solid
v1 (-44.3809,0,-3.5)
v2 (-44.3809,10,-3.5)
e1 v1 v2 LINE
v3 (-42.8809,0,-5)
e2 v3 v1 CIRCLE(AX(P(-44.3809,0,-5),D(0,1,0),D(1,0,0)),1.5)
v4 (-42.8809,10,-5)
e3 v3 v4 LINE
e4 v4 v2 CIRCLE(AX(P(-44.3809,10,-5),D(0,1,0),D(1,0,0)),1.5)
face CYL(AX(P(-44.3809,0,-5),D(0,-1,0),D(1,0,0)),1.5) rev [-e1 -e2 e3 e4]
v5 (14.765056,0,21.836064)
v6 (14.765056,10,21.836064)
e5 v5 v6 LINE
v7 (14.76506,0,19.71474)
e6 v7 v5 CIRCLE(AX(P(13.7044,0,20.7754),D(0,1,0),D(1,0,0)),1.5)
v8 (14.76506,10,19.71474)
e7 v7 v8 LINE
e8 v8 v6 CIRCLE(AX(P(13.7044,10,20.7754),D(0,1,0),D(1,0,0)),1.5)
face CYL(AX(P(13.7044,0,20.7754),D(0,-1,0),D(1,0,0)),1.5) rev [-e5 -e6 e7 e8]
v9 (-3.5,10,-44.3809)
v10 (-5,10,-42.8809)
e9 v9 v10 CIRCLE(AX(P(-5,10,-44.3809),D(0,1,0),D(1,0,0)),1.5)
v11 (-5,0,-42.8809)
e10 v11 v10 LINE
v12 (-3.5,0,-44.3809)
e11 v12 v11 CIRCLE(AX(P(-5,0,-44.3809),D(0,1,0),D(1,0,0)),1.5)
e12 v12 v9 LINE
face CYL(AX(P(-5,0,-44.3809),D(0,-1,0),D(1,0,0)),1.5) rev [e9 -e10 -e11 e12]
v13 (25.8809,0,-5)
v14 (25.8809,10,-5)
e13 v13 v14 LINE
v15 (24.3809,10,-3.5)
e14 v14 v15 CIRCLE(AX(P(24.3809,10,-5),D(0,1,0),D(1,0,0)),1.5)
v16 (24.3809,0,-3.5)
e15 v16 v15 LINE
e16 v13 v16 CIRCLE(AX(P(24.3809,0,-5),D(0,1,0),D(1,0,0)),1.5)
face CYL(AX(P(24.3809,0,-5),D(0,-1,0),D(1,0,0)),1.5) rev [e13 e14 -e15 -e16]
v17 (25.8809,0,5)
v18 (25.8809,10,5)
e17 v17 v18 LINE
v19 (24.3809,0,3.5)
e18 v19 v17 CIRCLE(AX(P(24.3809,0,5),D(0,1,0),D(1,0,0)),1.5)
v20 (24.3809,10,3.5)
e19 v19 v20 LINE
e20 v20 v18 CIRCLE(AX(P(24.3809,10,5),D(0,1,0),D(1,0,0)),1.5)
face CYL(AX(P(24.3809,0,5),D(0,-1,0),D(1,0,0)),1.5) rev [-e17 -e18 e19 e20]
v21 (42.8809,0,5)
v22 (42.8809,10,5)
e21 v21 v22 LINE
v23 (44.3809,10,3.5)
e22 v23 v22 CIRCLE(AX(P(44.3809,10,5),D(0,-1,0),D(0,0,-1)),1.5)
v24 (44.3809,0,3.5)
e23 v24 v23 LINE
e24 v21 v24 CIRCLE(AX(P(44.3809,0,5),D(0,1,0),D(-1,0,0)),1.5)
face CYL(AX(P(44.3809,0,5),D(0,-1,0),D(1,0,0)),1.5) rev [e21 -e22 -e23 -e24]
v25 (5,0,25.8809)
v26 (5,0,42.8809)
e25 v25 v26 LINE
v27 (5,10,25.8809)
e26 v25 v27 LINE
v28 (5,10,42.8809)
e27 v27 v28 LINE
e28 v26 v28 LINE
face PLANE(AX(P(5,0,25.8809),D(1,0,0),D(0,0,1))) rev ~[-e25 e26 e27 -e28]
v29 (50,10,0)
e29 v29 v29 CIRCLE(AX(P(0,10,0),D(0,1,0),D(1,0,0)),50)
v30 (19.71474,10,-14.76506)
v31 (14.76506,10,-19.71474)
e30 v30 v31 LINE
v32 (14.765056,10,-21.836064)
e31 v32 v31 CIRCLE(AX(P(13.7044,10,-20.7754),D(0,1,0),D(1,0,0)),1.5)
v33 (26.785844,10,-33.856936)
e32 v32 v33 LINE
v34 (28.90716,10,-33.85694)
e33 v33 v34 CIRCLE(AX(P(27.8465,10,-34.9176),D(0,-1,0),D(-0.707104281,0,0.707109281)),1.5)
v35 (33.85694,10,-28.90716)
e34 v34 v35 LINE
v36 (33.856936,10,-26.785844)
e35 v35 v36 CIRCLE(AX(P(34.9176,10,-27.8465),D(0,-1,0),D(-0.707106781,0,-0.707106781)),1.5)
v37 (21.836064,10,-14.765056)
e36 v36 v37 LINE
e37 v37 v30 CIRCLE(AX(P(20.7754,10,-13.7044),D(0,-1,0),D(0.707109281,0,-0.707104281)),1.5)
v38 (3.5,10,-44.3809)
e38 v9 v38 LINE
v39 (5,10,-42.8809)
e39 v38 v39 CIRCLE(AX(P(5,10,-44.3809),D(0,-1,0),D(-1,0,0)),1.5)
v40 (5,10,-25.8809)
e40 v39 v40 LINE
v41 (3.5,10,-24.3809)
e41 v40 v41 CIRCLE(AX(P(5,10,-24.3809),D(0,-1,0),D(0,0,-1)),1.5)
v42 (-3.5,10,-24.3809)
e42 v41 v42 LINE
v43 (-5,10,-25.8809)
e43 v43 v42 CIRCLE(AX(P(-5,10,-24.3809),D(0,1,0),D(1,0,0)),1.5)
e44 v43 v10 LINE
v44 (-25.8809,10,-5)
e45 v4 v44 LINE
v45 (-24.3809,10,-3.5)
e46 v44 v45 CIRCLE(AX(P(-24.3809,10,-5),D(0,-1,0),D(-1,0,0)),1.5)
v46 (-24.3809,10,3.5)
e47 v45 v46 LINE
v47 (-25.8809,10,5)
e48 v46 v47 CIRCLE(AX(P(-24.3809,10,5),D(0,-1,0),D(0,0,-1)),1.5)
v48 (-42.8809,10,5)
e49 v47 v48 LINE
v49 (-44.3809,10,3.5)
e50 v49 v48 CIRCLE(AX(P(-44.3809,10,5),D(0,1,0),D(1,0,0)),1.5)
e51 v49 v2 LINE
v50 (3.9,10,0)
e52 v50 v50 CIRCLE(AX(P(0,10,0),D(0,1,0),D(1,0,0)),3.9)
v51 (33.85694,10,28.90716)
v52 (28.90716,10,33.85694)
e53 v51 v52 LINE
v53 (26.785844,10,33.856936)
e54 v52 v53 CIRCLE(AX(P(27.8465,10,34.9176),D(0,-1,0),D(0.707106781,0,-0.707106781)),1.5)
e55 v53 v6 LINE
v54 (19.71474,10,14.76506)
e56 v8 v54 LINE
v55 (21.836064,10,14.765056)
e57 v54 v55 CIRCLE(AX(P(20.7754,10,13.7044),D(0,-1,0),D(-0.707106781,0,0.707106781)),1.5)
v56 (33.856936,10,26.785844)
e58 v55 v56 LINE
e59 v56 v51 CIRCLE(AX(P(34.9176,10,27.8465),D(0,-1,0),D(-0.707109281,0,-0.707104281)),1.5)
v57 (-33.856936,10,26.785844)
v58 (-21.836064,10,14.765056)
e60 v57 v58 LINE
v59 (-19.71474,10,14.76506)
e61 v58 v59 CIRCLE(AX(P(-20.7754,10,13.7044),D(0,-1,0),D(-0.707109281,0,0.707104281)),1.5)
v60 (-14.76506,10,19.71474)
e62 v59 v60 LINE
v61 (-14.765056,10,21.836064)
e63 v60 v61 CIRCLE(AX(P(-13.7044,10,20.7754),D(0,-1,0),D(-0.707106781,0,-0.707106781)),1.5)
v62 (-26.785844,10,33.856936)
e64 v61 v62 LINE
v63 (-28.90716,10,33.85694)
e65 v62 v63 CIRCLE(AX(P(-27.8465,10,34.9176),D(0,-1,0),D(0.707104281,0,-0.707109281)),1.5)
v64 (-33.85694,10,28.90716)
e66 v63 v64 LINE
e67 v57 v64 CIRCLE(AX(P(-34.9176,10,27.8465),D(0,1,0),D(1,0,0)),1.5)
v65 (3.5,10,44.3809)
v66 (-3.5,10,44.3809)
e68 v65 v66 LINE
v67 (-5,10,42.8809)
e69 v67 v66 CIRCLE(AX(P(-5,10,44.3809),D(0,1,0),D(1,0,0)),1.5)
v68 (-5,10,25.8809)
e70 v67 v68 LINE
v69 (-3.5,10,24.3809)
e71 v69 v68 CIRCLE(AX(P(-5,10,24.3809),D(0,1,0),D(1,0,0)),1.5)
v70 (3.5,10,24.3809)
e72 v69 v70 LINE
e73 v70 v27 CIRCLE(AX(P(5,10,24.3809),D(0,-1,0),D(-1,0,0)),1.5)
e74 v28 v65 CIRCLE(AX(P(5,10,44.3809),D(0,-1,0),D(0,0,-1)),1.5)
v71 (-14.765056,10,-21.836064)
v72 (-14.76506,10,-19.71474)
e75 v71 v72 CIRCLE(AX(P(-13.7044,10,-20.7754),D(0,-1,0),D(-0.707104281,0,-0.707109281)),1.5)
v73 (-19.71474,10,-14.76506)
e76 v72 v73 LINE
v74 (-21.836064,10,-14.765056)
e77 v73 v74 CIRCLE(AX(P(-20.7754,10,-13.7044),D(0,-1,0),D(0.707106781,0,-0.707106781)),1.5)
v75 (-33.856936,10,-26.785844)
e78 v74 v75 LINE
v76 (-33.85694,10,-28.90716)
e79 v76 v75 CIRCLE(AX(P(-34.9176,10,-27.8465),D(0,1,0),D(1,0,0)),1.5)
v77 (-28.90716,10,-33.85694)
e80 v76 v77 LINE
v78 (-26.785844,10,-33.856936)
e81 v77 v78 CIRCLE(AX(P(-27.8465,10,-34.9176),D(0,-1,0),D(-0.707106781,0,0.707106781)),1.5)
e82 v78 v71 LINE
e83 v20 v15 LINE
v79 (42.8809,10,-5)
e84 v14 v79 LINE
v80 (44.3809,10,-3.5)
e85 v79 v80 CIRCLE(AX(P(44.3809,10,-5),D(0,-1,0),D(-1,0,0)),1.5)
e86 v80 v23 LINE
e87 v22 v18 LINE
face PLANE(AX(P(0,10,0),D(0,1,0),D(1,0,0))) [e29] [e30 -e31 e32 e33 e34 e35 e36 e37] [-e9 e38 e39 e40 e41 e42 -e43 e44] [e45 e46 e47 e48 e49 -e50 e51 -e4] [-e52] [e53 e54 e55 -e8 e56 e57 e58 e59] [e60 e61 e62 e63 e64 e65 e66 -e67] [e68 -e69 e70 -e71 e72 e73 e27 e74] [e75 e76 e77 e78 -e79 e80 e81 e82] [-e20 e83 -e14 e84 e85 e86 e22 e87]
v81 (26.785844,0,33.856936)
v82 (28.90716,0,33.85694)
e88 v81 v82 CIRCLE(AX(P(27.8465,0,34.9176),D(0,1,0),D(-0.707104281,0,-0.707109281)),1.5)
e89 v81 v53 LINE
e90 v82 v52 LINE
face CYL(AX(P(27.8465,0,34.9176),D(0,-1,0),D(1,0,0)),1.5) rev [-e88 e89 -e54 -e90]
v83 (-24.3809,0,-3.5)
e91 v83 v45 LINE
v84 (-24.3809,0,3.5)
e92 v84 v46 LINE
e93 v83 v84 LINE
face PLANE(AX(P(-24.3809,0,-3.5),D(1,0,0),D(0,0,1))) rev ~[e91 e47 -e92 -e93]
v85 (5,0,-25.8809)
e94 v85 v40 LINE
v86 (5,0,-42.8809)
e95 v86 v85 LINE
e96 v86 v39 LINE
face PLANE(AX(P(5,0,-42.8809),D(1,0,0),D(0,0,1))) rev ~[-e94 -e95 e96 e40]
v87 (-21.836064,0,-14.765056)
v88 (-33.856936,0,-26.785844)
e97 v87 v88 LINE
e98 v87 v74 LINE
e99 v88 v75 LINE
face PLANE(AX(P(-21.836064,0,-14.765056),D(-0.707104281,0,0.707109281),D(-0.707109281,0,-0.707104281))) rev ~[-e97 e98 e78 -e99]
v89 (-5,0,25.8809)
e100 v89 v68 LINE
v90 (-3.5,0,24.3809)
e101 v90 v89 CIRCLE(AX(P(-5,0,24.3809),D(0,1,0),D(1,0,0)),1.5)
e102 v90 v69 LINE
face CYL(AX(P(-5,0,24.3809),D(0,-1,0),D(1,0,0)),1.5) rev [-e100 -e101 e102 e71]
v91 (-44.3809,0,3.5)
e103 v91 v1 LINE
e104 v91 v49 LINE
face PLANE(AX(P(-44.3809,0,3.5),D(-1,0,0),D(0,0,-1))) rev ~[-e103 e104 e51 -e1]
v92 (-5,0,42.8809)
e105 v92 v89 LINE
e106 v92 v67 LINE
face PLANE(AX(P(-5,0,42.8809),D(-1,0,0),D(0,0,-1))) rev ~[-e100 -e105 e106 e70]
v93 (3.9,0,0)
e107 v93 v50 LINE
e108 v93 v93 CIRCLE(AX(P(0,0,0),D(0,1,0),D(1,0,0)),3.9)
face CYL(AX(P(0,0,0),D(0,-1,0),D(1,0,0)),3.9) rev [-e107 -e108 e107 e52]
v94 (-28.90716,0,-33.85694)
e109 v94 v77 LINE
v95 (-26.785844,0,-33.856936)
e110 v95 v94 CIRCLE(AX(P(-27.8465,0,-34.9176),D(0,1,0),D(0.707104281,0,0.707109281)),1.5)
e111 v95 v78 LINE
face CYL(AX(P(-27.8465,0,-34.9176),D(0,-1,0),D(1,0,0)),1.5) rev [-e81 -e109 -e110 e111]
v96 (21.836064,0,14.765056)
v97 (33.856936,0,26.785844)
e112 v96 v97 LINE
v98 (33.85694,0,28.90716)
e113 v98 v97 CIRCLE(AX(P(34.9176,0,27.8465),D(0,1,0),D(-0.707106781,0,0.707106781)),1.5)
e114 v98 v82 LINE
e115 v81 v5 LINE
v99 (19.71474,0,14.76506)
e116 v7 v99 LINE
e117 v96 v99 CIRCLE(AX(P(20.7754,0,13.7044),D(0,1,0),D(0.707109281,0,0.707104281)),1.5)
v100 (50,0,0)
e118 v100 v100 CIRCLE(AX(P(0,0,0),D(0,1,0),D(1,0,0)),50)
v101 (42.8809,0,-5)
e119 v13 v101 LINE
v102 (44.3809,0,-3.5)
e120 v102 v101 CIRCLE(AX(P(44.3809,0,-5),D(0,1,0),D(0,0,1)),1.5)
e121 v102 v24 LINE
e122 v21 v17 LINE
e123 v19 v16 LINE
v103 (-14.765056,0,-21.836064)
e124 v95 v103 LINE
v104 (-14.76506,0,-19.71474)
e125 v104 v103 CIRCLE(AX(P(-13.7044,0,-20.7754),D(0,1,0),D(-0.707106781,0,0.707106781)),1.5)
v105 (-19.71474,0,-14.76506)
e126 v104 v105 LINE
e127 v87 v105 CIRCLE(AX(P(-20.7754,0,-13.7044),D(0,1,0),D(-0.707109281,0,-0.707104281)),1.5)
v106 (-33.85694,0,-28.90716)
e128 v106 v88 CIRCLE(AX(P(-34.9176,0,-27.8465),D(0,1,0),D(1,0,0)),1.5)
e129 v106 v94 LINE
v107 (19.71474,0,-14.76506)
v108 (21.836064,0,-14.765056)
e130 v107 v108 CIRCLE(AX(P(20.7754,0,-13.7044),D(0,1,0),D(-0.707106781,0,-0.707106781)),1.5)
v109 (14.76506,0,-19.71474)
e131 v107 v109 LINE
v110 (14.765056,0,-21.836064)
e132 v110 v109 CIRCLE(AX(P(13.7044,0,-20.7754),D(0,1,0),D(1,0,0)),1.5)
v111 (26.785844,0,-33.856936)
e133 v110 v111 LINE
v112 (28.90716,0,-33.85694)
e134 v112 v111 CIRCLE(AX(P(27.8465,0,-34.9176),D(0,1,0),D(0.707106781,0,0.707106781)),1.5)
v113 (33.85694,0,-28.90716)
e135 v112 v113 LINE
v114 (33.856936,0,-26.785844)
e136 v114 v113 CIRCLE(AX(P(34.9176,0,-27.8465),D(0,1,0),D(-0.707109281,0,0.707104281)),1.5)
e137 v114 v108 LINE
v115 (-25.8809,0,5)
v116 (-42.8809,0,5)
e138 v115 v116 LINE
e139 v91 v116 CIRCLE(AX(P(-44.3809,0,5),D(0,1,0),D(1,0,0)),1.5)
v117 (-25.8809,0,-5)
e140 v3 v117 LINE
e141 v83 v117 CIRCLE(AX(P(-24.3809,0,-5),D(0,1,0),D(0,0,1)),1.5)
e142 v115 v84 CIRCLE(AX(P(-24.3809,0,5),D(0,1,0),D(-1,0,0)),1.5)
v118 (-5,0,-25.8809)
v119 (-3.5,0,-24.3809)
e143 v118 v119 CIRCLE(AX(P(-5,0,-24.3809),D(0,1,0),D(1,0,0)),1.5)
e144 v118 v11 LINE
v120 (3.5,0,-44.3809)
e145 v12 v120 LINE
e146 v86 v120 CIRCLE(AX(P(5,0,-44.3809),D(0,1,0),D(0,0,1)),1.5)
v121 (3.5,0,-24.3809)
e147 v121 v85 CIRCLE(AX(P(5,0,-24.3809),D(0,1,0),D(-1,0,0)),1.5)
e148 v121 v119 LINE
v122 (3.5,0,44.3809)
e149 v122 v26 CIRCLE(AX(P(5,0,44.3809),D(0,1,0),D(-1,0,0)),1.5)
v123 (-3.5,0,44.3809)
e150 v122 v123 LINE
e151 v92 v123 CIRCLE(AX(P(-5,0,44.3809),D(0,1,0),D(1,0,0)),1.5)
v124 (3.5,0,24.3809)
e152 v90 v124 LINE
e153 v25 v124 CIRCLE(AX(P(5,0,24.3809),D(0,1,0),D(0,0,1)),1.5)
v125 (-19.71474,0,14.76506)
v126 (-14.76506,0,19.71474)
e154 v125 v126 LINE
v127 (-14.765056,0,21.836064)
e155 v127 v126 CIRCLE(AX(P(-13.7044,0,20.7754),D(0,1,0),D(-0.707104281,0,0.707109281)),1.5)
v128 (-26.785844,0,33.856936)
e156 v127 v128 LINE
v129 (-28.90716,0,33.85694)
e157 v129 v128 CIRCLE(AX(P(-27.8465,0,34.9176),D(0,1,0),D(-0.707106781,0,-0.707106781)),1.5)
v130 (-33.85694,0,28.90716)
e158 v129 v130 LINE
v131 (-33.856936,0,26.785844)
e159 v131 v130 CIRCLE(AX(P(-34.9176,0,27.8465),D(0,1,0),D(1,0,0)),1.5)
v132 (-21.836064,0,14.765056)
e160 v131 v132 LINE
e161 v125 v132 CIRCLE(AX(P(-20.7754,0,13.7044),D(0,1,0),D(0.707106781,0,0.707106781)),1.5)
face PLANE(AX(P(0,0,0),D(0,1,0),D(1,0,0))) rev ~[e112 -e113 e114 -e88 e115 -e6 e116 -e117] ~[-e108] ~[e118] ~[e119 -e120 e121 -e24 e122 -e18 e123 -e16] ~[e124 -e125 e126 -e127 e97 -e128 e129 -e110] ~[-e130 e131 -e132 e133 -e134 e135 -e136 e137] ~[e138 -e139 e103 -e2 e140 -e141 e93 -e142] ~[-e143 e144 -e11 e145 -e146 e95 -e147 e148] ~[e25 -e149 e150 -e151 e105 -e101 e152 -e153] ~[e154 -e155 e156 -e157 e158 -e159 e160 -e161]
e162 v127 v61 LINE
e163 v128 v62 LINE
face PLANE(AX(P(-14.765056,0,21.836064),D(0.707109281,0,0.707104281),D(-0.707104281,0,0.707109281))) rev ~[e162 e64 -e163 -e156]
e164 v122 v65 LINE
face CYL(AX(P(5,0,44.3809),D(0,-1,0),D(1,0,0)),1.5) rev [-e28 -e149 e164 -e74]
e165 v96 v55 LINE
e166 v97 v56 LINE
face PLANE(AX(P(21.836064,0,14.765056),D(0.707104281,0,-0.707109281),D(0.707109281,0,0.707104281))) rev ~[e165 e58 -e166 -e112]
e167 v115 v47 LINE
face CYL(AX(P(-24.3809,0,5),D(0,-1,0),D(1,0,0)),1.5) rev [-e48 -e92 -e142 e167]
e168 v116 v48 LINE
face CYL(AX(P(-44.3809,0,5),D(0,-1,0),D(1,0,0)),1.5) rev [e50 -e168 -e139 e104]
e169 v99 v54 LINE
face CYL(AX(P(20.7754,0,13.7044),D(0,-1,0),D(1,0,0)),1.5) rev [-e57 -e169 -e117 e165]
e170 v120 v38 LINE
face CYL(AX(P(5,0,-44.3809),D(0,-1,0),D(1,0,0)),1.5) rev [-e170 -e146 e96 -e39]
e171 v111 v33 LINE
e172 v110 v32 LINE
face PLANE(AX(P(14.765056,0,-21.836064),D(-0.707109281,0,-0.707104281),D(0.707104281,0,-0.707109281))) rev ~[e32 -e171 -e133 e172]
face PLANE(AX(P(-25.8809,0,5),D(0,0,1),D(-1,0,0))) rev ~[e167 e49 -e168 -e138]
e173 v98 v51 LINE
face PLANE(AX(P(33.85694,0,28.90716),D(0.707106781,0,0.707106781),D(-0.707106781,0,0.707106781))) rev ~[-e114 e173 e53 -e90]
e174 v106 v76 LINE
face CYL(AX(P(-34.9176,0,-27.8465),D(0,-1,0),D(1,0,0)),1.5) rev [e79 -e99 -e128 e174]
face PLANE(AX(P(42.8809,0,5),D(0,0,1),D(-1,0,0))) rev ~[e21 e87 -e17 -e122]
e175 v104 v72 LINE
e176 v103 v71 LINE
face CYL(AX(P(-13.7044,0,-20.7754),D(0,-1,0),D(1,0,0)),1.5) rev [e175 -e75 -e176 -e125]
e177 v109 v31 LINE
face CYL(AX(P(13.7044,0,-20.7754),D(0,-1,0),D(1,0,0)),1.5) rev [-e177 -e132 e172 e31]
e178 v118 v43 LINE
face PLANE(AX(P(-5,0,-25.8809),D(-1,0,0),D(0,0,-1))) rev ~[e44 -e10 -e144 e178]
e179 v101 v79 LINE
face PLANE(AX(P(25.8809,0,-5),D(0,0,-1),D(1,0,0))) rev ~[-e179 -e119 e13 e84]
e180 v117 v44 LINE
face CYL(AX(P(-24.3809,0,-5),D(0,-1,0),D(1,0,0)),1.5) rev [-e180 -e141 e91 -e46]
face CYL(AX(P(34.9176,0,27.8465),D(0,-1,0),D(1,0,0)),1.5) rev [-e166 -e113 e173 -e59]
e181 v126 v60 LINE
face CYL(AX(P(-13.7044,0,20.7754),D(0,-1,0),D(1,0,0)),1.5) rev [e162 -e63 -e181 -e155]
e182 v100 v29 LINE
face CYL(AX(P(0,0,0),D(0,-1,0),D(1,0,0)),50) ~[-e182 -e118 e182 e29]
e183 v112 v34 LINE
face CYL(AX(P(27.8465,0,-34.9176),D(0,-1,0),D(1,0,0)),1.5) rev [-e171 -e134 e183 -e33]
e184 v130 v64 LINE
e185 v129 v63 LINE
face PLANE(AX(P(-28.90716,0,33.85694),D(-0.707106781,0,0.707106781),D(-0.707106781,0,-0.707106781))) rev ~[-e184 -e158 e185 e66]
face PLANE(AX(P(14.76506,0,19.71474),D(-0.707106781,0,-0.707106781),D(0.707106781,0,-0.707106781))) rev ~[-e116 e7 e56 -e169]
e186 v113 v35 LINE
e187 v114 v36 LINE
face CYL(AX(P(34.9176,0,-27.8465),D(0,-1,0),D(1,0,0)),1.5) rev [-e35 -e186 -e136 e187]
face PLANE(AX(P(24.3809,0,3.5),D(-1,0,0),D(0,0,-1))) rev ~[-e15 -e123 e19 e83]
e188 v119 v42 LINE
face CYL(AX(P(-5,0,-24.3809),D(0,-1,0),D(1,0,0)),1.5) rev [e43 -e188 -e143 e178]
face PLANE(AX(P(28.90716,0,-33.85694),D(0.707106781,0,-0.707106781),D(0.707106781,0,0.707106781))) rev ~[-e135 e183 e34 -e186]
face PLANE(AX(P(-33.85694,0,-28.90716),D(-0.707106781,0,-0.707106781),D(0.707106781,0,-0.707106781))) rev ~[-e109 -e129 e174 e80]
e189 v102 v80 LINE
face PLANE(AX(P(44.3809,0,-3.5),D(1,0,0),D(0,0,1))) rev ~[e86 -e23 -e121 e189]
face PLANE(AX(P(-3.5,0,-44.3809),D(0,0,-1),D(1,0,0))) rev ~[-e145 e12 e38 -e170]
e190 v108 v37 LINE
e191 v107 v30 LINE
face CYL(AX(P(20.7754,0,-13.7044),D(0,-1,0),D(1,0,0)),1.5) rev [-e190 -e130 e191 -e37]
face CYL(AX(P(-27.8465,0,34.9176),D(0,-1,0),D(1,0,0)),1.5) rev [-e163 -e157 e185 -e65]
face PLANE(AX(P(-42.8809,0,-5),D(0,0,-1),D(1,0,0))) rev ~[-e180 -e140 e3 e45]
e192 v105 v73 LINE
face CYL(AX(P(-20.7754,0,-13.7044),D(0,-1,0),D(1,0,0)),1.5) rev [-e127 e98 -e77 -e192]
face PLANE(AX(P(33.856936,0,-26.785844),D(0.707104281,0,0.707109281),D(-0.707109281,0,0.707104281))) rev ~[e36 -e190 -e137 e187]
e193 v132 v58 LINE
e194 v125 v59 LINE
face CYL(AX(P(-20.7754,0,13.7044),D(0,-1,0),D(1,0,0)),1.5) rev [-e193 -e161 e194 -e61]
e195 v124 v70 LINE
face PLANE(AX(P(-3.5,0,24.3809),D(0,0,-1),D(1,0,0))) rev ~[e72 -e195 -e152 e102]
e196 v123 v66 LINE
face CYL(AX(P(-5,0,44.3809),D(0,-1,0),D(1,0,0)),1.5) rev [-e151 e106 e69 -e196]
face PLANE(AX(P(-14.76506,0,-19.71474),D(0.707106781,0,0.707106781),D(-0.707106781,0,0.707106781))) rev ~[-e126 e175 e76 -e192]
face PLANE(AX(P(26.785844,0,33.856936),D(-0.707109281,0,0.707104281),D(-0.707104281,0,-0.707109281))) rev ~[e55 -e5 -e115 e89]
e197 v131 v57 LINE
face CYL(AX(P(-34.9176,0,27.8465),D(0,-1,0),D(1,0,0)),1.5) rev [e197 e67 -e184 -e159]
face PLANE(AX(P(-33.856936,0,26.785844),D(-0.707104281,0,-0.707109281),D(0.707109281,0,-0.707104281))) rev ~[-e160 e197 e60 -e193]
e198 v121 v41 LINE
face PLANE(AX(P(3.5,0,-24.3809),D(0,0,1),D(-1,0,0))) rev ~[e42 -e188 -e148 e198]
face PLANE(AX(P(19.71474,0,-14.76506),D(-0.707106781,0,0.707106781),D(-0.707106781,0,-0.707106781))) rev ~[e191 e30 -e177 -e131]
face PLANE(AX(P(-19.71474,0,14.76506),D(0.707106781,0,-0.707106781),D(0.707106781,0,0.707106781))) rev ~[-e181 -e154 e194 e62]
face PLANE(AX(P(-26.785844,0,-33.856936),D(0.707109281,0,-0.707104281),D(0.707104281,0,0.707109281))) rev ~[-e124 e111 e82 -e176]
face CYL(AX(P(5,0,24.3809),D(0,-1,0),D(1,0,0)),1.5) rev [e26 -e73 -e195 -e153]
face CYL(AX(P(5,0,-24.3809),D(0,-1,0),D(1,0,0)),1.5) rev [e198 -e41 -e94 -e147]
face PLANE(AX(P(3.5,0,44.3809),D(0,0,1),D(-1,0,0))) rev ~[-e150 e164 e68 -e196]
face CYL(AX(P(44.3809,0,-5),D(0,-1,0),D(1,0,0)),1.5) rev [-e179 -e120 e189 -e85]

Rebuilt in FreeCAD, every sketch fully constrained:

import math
import FreeCAD as App
import Part
import Sketcher
from FreeCAD import Vector

doc = App.newDocument("Part")
body = doc.addObject("PartDesign::Body", "Body")

# Sketch on XZ plane
sketch1 = body.newObject("Sketcher::SketchObject", "Sketch")
sketch1.AttachmentSupport = (doc.getObject("XZ_Plane"), [""])
sketch1.MapMode = "FlatFace"
sketch1.addGeometry([
    Part.Circle(Vector(0, 0, 0), Vector(0, 0, 1), 50),  # 0
    Part.Circle(Vector(0, 0, 0), Vector(0, 0, 1), 3.9),  # 1
    Part.ArcOfCircle(Part.Circle(Vector(-27.8, 34.9, 0), Vector(0, 0, 1), 1.5), math.radians(-45), math.radians(225)),  # 2
    Part.LineSegment(Vector(-28.9, 33.9, 0), Vector(-33.9, 28.9, 0)),  # 3
    Part.ArcOfCircle(Part.Circle(Vector(-34.9, 27.8, 0), Vector(0, 0, 1), 1.5), math.radians(45), math.radians(315)),  # 4
    Part.LineSegment(Vector(-33.9, 26.8, 0), Vector(-21.8, 14.8, 0)),  # 5
    Part.ArcOfCircle(Part.Circle(Vector(-20.8, 13.7, 0), Vector(0, 0, 1), 1.5), math.radians(135), math.radians(405)),  # 6
    Part.LineSegment(Vector(-19.7, 14.8, 0), Vector(-14.8, 19.7, 0)),  # 7
    Part.ArcOfCircle(Part.Circle(Vector(-13.7, 20.8, 0), Vector(0, 0, 1), 1.5), math.radians(-135), math.radians(135)),  # 8
    Part.LineSegment(Vector(-14.8, 21.8, 0), Vector(-26.8, 33.9, 0)),  # 9
    Part.ArcOfCircle(Part.Circle(Vector(5, 44.4, 0), Vector(0, 0, 1), 1.5), math.radians(-90), math.radians(180)),  # 10
    Part.LineSegment(Vector(3.5, 44.4, 0), Vector(-3.5, 44.4, 0)),  # 11
    Part.ArcOfCircle(Part.Circle(Vector(-5, 44.4, 0), Vector(0, 0, 1), 1.5), math.radians(0), math.radians(270)),  # 12
    Part.LineSegment(Vector(-5, 42.9, 0), Vector(-5, 25.9, 0)),  # 13
    Part.ArcOfCircle(Part.Circle(Vector(-5, 24.4, 0), Vector(0, 0, 1), 1.5), math.radians(90), math.radians(360)),  # 14
    Part.LineSegment(Vector(-3.5, 24.4, 0), Vector(3.5, 24.4, 0)),  # 15
    Part.ArcOfCircle(Part.Circle(Vector(5, 24.4, 0), Vector(0, 0, 1), 1.5), math.radians(180), math.radians(450)),  # 16
    Part.LineSegment(Vector(5, 25.9, 0), Vector(5, 42.9, 0)),  # 17
    Part.ArcOfCircle(Part.Circle(Vector(34.9, 27.8, 0), Vector(0, 0, 1), 1.5), math.radians(-135), math.radians(135)),  # 18
    Part.LineSegment(Vector(33.9, 28.9, 0), Vector(28.9, 33.9, 0)),  # 19
    Part.ArcOfCircle(Part.Circle(Vector(27.8, 34.9, 0), Vector(0, 0, 1), 1.5), math.radians(-45), math.radians(225)),  # 20
    Part.LineSegment(Vector(26.8, 33.9, 0), Vector(14.8, 21.8, 0)),  # 21
    Part.ArcOfCircle(Part.Circle(Vector(13.7, 20.8, 0), Vector(0, 0, 1), 1.5), math.radians(45), math.radians(315)),  # 22
    Part.LineSegment(Vector(14.8, 19.7, 0), Vector(19.7, 14.8, 0)),  # 23
    Part.ArcOfCircle(Part.Circle(Vector(20.8, 13.7, 0), Vector(0, 0, 1), 1.5), math.radians(135), math.radians(405)),  # 24
    Part.LineSegment(Vector(21.8, 14.8, 0), Vector(33.9, 26.8, 0)),  # 25
    Part.LineSegment(Vector(-25.9, 5, 0), Vector(-42.9, 5, 0)),  # 26
    Part.ArcOfCircle(Part.Circle(Vector(-44.4, 5, 0), Vector(0, 0, 1), 1.5), math.radians(0), math.radians(270)),  # 27
    Part.LineSegment(Vector(-44.4, 3.5, 0), Vector(-44.4, -3.5, 0)),  # 28
    Part.ArcOfCircle(Part.Circle(Vector(-44.4, -5, 0), Vector(0, 0, 1), 1.5), math.radians(90), math.radians(360)),  # 29
    Part.LineSegment(Vector(-42.9, -5, 0), Vector(-25.9, -5, 0)),  # 30
    Part.ArcOfCircle(Part.Circle(Vector(-24.4, -5, 0), Vector(0, 0, 1), 1.5), math.radians(180), math.radians(450)),  # 31
    Part.LineSegment(Vector(-24.4, -3.5, 0), Vector(-24.4, 3.5, 0)),  # 32
    Part.ArcOfCircle(Part.Circle(Vector(-24.4, 5, 0), Vector(0, 0, 1), 1.5), math.radians(-90), math.radians(180)),  # 33
    Part.ArcOfCircle(Part.Circle(Vector(-34.9, -27.8, 0), Vector(0, 0, 1), 1.5), math.radians(45), math.radians(315)),  # 34
    Part.LineSegment(Vector(-33.9, -28.9, 0), Vector(-28.9, -33.9, 0)),  # 35
    Part.ArcOfCircle(Part.Circle(Vector(-27.8, -34.9, 0), Vector(0, 0, 1), 1.5), math.radians(135), math.radians(405)),  # 36
    Part.LineSegment(Vector(-26.8, -33.9, 0), Vector(-14.8, -21.8, 0)),  # 37
    Part.ArcOfCircle(Part.Circle(Vector(-13.7, -20.8, 0), Vector(0, 0, 1), 1.5), math.radians(-135), math.radians(135)),  # 38
    Part.LineSegment(Vector(-14.8, -19.7, 0), Vector(-19.7, -14.8, 0)),  # 39
    Part.ArcOfCircle(Part.Circle(Vector(-20.8, -13.7, 0), Vector(0, 0, 1), 1.5), math.radians(-45), math.radians(225)),  # 40
    Part.LineSegment(Vector(-21.8, -14.8, 0), Vector(-33.9, -26.8, 0)),  # 41
    Part.LineSegment(Vector(-3.5, -44.4, 0), Vector(3.5, -44.4, 0)),  # 42
    Part.ArcOfCircle(Part.Circle(Vector(5, -44.4, 0), Vector(0, 0, 1), 1.5), math.radians(180), math.radians(450)),  # 43
    Part.LineSegment(Vector(5, -42.9, 0), Vector(5, -25.9, 0)),  # 44
    Part.ArcOfCircle(Part.Circle(Vector(5, -24.4, 0), Vector(0, 0, 1), 1.5), math.radians(-90), math.radians(180)),  # 45
    Part.LineSegment(Vector(3.5, -24.4, 0), Vector(-3.5, -24.4, 0)),  # 46
    Part.ArcOfCircle(Part.Circle(Vector(-5, -24.4, 0), Vector(0, 0, 1), 1.5), math.radians(0), math.radians(270)),  # 47
    Part.LineSegment(Vector(-5, -25.9, 0), Vector(-5, -42.9, 0)),  # 48
    Part.ArcOfCircle(Part.Circle(Vector(-5, -44.4, 0), Vector(0, 0, 1), 1.5), math.radians(90), math.radians(360)),  # 49
    Part.ArcOfCircle(Part.Circle(Vector(27.8, -34.9, 0), Vector(0, 0, 1), 1.5), math.radians(135), math.radians(405)),  # 50
    Part.LineSegment(Vector(28.9, -33.9, 0), Vector(33.9, -28.9, 0)),  # 51
    Part.ArcOfCircle(Part.Circle(Vector(34.9, -27.8, 0), Vector(0, 0, 1), 1.5), math.radians(-135), math.radians(135)),  # 52
    Part.LineSegment(Vector(33.9, -26.8, 0), Vector(21.8, -14.8, 0)),  # 53
    Part.ArcOfCircle(Part.Circle(Vector(20.8, -13.7, 0), Vector(0, 0, 1), 1.5), math.radians(-45), math.radians(225)),  # 54
    Part.LineSegment(Vector(19.7, -14.8, 0), Vector(14.8, -19.7, 0)),  # 55
    Part.ArcOfCircle(Part.Circle(Vector(13.7, -20.8, 0), Vector(0, 0, 1), 1.5), math.radians(45), math.radians(315)),  # 56
    Part.LineSegment(Vector(14.8, -21.8, 0), Vector(26.8, -33.9, 0)),  # 57
    Part.ArcOfCircle(Part.Circle(Vector(44.4, -5, 0), Vector(0, 0, 1), 1.5), math.radians(180), math.radians(450)),  # 58
    Part.LineSegment(Vector(44.4, -3.5, 0), Vector(44.4, 3.5, 0)),  # 59
    Part.ArcOfCircle(Part.Circle(Vector(44.4, 5, 0), Vector(0, 0, 1), 1.5), math.radians(-90), math.radians(180)),  # 60
    Part.LineSegment(Vector(42.9, 5, 0), Vector(25.9, 5, 0)),  # 61
    Part.ArcOfCircle(Part.Circle(Vector(24.4, 5, 0), Vector(0, 0, 1), 1.5), math.radians(0), math.radians(270)),  # 62
    Part.LineSegment(Vector(24.4, 3.5, 0), Vector(24.4, -3.5, 0)),  # 63
    Part.ArcOfCircle(Part.Circle(Vector(24.4, -5, 0), Vector(0, 0, 1), 1.5), math.radians(90), math.radians(360)),  # 64
    Part.LineSegment(Vector(25.9, -5, 0), Vector(42.9, -5, 0)),  # 65
], False)
sketch1.addConstraint([
    Sketcher.Constraint("Coincident", 2, 2, 3, 1),
    Sketcher.Constraint("Coincident", 3, 2, 4, 1),
    Sketcher.Constraint("Coincident", 4, 2, 5, 1),
    Sketcher.Constraint("Coincident", 5, 2, 6, 1),
    Sketcher.Constraint("Coincident", 6, 2, 7, 1),
    Sketcher.Constraint("Coincident", 7, 2, 8, 1),
    Sketcher.Constraint("Coincident", 8, 2, 9, 1),
    Sketcher.Constraint("Coincident", 9, 2, 2, 1),
    Sketcher.Constraint("Coincident", 10, 2, 11, 1),
    Sketcher.Constraint("Coincident", 11, 2, 12, 1),
    Sketcher.Constraint("Coincident", 12, 2, 13, 1),
    Sketcher.Constraint("Coincident", 13, 2, 14, 1),
    Sketcher.Constraint("Coincident", 14, 2, 15, 1),
    Sketcher.Constraint("Coincident", 15, 2, 16, 1),
    Sketcher.Constraint("Coincident", 16, 2, 17, 1),
    Sketcher.Constraint("Coincident", 17, 2, 10, 1),
    Sketcher.Constraint("Coincident", 18, 2, 19, 1),
    Sketcher.Constraint("Coincident", 19, 2, 20, 1),
    Sketcher.Constraint("Coincident", 20, 2, 21, 1),
    Sketcher.Constraint("Coincident", 21, 2, 22, 1),
    Sketcher.Constraint("Coincident", 22, 2, 23, 1),
    Sketcher.Constraint("Coincident", 23, 2, 24, 1),
    Sketcher.Constraint("Coincident", 24, 2, 25, 1),
    Sketcher.Constraint("Coincident", 25, 2, 18, 1),
    Sketcher.Constraint("Coincident", 26, 2, 27, 1),
    Sketcher.Constraint("Coincident", 27, 2, 28, 1),
    Sketcher.Constraint("Coincident", 28, 2, 29, 1),
    Sketcher.Constraint("Coincident", 29, 2, 30, 1),
    Sketcher.Constraint("Coincident", 30, 2, 31, 1),
    Sketcher.Constraint("Coincident", 31, 2, 32, 1),
    Sketcher.Constraint("Coincident", 32, 2, 33, 1),
    Sketcher.Constraint("Coincident", 33, 2, 26, 1),
    Sketcher.Constraint("Coincident", 34, 2, 35, 1),
    Sketcher.Constraint("Coincident", 35, 2, 36, 1),
    Sketcher.Constraint("Coincident", 36, 2, 37, 1),
    Sketcher.Constraint("Coincident", 37, 2, 38, 1),
    Sketcher.Constraint("Coincident", 38, 2, 39, 1),
    Sketcher.Constraint("Coincident", 39, 2, 40, 1),
    Sketcher.Constraint("Coincident", 40, 2, 41, 1),
    Sketcher.Constraint("Coincident", 41, 2, 34, 1),
    Sketcher.Constraint("Coincident", 42, 2, 43, 1),
    Sketcher.Constraint("Coincident", 43, 2, 44, 1),
    Sketcher.Constraint("Coincident", 44, 2, 45, 1),
    Sketcher.Constraint("Coincident", 45, 2, 46, 1),
    Sketcher.Constraint("Coincident", 46, 2, 47, 1),
    Sketcher.Constraint("Coincident", 47, 2, 48, 1),
    Sketcher.Constraint("Coincident", 48, 2, 49, 1),
    Sketcher.Constraint("Coincident", 49, 2, 42, 1),
    Sketcher.Constraint("Coincident", 50, 2, 51, 1),
    Sketcher.Constraint("Coincident", 51, 2, 52, 1),
    Sketcher.Constraint("Coincident", 52, 2, 53, 1),
    Sketcher.Constraint("Coincident", 53, 2, 54, 1),
    Sketcher.Constraint("Coincident", 54, 2, 55, 1),
    Sketcher.Constraint("Coincident", 55, 2, 56, 1),
    Sketcher.Constraint("Coincident", 56, 2, 57, 1),
    Sketcher.Constraint("Coincident", 57, 2, 50, 1),
    Sketcher.Constraint("Coincident", 58, 2, 59, 1),
    Sketcher.Constraint("Coincident", 59, 2, 60, 1),
    Sketcher.Constraint("Coincident", 60, 2, 61, 1),
    Sketcher.Constraint("Coincident", 61, 2, 62, 1),
    Sketcher.Constraint("Coincident", 62, 2, 63, 1),
    Sketcher.Constraint("Coincident", 63, 2, 64, 1),
    Sketcher.Constraint("Coincident", 64, 2, 65, 1),
    Sketcher.Constraint("Coincident", 65, 2, 58, 1),
    Sketcher.Constraint("Horizontal", 11),
    Sketcher.Constraint("Vertical", 13),
    Sketcher.Constraint("Horizontal", 15),
    Sketcher.Constraint("Vertical", 17),
    Sketcher.Constraint("Horizontal", 26),
    Sketcher.Constraint("Vertical", 28),
    Sketcher.Constraint("Horizontal", 30),
    Sketcher.Constraint("Vertical", 32),
    Sketcher.Constraint("Horizontal", 42),
    Sketcher.Constraint("Vertical", 44),
    Sketcher.Constraint("Horizontal", 46),
    Sketcher.Constraint("Vertical", 48),
    Sketcher.Constraint("Vertical", 59),
    Sketcher.Constraint("Horizontal", 61),
    Sketcher.Constraint("Vertical", 63),
    Sketcher.Constraint("Horizontal", 65),
    Sketcher.Constraint("Coincident", 0, 3, -1, 1),
    Sketcher.Constraint("Coincident", 1, 3, -1, 1),
    Sketcher.Constraint("Equal", 2, 4),
    Sketcher.Constraint("Equal", 4, 6),
    Sketcher.Constraint("Equal", 6, 8),
    Sketcher.Constraint("Equal", 8, 10),
    Sketcher.Constraint("Equal", 10, 12),
    Sketcher.Constraint("Equal", 12, 14),
    Sketcher.Constraint("Equal", 14, 16),
    Sketcher.Constraint("Equal", 16, 18),
    Sketcher.Constraint("Equal", 18, 20),
    Sketcher.Constraint("Equal", 20, 22),
    Sketcher.Constraint("Equal", 22, 24),
    Sketcher.Constraint("Equal", 24, 27),
    Sketcher.Constraint("Equal", 27, 29),
    Sketcher.Constraint("Equal", 29, 31),
    Sketcher.Constraint("Equal", 31, 33),
    Sketcher.Constraint("Equal", 33, 34),
    Sketcher.Constraint("Equal", 34, 36),
    Sketcher.Constraint("Equal", 36, 38),
    Sketcher.Constraint("Equal", 38, 40),
    Sketcher.Constraint("Equal", 40, 43),
    Sketcher.Constraint("Equal", 43, 45),
    Sketcher.Constraint("Equal", 45, 47),
    Sketcher.Constraint("Equal", 47, 49),
    Sketcher.Constraint("Equal", 49, 50),
    Sketcher.Constraint("Equal", 50, 52),
    Sketcher.Constraint("Equal", 52, 54),
    Sketcher.Constraint("Equal", 54, 56),
    Sketcher.Constraint("Equal", 56, 58),
    Sketcher.Constraint("Equal", 58, 60),
    Sketcher.Constraint("Equal", 60, 62),
    Sketcher.Constraint("Equal", 62, 64),
    Sketcher.Constraint("Symmetric", 18, 3, 34, 3, -1, 1),
    Sketcher.Constraint("Symmetric", 20, 3, 36, 3, -1, 1),
    Sketcher.Constraint("Symmetric", 22, 3, 38, 3, -1, 1),
    Sketcher.Constraint("Symmetric", 24, 3, 40, 3, -1, 1),
    Sketcher.Constraint("Symmetric", 12, 3, 43, 3, -1, 1),
    Sketcher.Constraint("Symmetric", 14, 3, 45, 3, -1, 1),
    Sketcher.Constraint("Symmetric", 16, 3, 47, 3, -1, 1),
    Sketcher.Constraint("Symmetric", 10, 3, 49, 3, -1, 1),
    Sketcher.Constraint("Symmetric", 2, 3, 50, 3, -1, 1),
    Sketcher.Constraint("Symmetric", 4, 3, 52, 3, -1, 1),
    Sketcher.Constraint("Symmetric", 6, 3, 54, 3, -1, 1),
    Sketcher.Constraint("Symmetric", 8, 3, 56, 3, -1, 1),
    Sketcher.Constraint("Symmetric", 27, 3, 58, 3, -1, 1),
    Sketcher.Constraint("Symmetric", 29, 3, 60, 3, -1, 1),
    Sketcher.Constraint("Symmetric", 31, 3, 62, 3, -1, 1),
    Sketcher.Constraint("Symmetric", 33, 3, 64, 3, -1, 1),
    Sketcher.Constraint("Symmetric", 10, 3, 12, 3, -2),
    Sketcher.Constraint("Symmetric", 14, 3, 16, 3, -2),
    Sketcher.Constraint("Symmetric", 4, 3, 18, 3, -2),
    Sketcher.Constraint("Symmetric", 2, 3, 20, 3, -2),
    Sketcher.Constraint("Symmetric", 8, 3, 22, 3, -2),
    Sketcher.Constraint("Symmetric", 6, 3, 24, 3, -2),
    Sketcher.Constraint("Symmetric", 29, 3, 58, 3, -2),
    Sketcher.Constraint("Symmetric", 33, 3, 62, 3, -2),
    Sketcher.Constraint("Perpendicular", 3, 5),
    Sketcher.Constraint("Perpendicular", 5, 7),
    Sketcher.Constraint("Perpendicular", 7, 9),
    Sketcher.Constraint("Parallel", 9, 19),
    Sketcher.Constraint("Perpendicular", 19, 21),
    Sketcher.Constraint("Perpendicular", 21, 23),
    Sketcher.Constraint("Perpendicular", 23, 25),
    Sketcher.Constraint("Perpendicular", 25, 35),
    Sketcher.Constraint("Perpendicular", 35, 37),
    Sketcher.Constraint("Perpendicular", 37, 39),
    Sketcher.Constraint("Perpendicular", 39, 41),
    Sketcher.Constraint("Parallel", 41, 51),
    Sketcher.Constraint("Perpendicular", 51, 53),
    Sketcher.Constraint("Perpendicular", 53, 55),
    Sketcher.Constraint("Perpendicular", 55, 57),
    Sketcher.Constraint("Horizontal", 29, 3, 31, 3),
    Sketcher.Constraint("Horizontal", 5, 2, 6, 2),
    Sketcher.Constraint("Horizontal", 2, 2, 9, 2),
    Sketcher.Constraint("Horizontal", 12, 3, 10, 2),
    Sketcher.Constraint("Horizontal", 16, 3, 14, 2),
    Sketcher.Constraint("Horizontal", 3, 2, 18, 2),
    Sketcher.Constraint("Horizontal", 9, 2, 19, 2),
    Sketcher.Constraint("Horizontal", 19, 2, 20, 2),
    Sketcher.Constraint("Horizontal", 7, 2, 22, 2),
    Sketcher.Constraint("Horizontal", 23, 2, 24, 2),
    Sketcher.Constraint("Horizontal", 62, 3, 26, 2),
    Sketcher.Constraint("Horizontal", 64, 3, 29, 2),
    Sketcher.Constraint("Horizontal", 35, 2, 36, 2),
    Sketcher.Constraint("Horizontal", 39, 2, 40, 2),
    Sketcher.Constraint("Horizontal", 49, 3, 42, 2),
    Sketcher.Constraint("Horizontal", 47, 3, 45, 2),
    Sketcher.Constraint("Horizontal", 36, 2, 50, 2),
    Sketcher.Constraint("Horizontal", 41, 2, 52, 2),
    Sketcher.Constraint("Horizontal", 53, 2, 54, 2),
    Sketcher.Constraint("Horizontal", 37, 2, 56, 2),
    Sketcher.Constraint("Horizontal", 33, 2, 60, 2),
    Sketcher.Constraint("Horizontal", 30, 2, 64, 2),
    Sketcher.Constraint("Vertical", 12, 3, 14, 3),
    Sketcher.Constraint("Vertical", 3, 2, 4, 2),
    Sketcher.Constraint("Vertical", 7, 2, 8, 2),
    Sketcher.Constraint("Vertical", 49, 3, 12, 2),
    Sketcher.Constraint("Vertical", 45, 3, 16, 2),
    Sketcher.Constraint("Vertical", 29, 3, 27, 2),
    Sketcher.Constraint("Vertical", 33, 3, 31, 2),
    Sketcher.Constraint("Vertical", 4, 2, 34, 2),
    Sketcher.Constraint("Vertical", 37, 2, 38, 2),
    Sketcher.Constraint("Vertical", 17, 2, 43, 2),
    Sketcher.Constraint("Vertical", 13, 2, 47, 2),
    Sketcher.Constraint("Vertical", 60, 3, 58, 2),
    Sketcher.Constraint("Vertical", 64, 3, 62, 2),
    Sketcher.Constraint("Equal", 65, 13),
    Sketcher.Constraint("Equal", 46, 28),
    Sketcher.Constraint("Equal", 3, 7),
    Sketcher.Constraint("Equal", 5, 9),
    Sketcher.Constraint("Diameter", 0, 100.0),
    Sketcher.Constraint("Diameter", 1, 7.8),
    Sketcher.Constraint("Radius", 2, 1.5),
    Sketcher.Constraint("DistanceX", -1, 1, 10, 3, 5.0),
    Sketcher.Constraint("DistanceX", 26, 2, 26, 1, 17.0),
    Sketcher.Constraint("Distance", 3, 7.0),
    Sketcher.Constraint("Distance", 5, 17.0),
    Sketcher.Constraint("DistanceY", -1, 1, 10, 3, 44.381),
    Sketcher.Constraint("DistanceX", 27, 3, -1, 1, 44.381),
    Sketcher.Constraint("DistanceY", -1, 1, 2, 2, 33.857),
    Sketcher.Constraint("DistanceX", 3, 2, -1, 1, 33.857),
    Sketcher.Constraint("DistanceY", -1, 1, 5, 2, 14.765),
    Sketcher.Constraint("DistanceX", 7, 2, -1, 1, 14.765),
])
pad1 = body.newObject("PartDesign::Pad", "Pad")
pad1.Profile = sketch1
pad1.Length = 10
pad1.Reversed = True

# Sketch on XZ plane
sketch2 = body.newObject("Sketcher::SketchObject", "Sketch001")
sketch2.AttachmentSupport = (doc.getObject("XZ_Plane"), [""])
sketch2.MapMode = "FlatFace"
sketch2.addGeometry([
    Part.Circle(Vector(0, 0, 0), Vector(0, 0, 1), 20),
    Part.Circle(Vector(0, 0, 0), Vector(0, 0, 1), 3.9),
], False)
sketch2.addConstraint([
    Sketcher.Constraint("Coincident", 0, 3, -1, 1),
    Sketcher.Constraint("Coincident", 1, 3, -1, 1),
    Sketcher.Constraint("Diameter", 0, 40.0),
    Sketcher.Constraint("Diameter", 1, 7.8),
])
pad2 = body.newObject("PartDesign::Pad", "Pad001")
pad2.Profile = sketch2
pad2.Length = 6.5
pad2.Reversed = True

doc.recompute()
